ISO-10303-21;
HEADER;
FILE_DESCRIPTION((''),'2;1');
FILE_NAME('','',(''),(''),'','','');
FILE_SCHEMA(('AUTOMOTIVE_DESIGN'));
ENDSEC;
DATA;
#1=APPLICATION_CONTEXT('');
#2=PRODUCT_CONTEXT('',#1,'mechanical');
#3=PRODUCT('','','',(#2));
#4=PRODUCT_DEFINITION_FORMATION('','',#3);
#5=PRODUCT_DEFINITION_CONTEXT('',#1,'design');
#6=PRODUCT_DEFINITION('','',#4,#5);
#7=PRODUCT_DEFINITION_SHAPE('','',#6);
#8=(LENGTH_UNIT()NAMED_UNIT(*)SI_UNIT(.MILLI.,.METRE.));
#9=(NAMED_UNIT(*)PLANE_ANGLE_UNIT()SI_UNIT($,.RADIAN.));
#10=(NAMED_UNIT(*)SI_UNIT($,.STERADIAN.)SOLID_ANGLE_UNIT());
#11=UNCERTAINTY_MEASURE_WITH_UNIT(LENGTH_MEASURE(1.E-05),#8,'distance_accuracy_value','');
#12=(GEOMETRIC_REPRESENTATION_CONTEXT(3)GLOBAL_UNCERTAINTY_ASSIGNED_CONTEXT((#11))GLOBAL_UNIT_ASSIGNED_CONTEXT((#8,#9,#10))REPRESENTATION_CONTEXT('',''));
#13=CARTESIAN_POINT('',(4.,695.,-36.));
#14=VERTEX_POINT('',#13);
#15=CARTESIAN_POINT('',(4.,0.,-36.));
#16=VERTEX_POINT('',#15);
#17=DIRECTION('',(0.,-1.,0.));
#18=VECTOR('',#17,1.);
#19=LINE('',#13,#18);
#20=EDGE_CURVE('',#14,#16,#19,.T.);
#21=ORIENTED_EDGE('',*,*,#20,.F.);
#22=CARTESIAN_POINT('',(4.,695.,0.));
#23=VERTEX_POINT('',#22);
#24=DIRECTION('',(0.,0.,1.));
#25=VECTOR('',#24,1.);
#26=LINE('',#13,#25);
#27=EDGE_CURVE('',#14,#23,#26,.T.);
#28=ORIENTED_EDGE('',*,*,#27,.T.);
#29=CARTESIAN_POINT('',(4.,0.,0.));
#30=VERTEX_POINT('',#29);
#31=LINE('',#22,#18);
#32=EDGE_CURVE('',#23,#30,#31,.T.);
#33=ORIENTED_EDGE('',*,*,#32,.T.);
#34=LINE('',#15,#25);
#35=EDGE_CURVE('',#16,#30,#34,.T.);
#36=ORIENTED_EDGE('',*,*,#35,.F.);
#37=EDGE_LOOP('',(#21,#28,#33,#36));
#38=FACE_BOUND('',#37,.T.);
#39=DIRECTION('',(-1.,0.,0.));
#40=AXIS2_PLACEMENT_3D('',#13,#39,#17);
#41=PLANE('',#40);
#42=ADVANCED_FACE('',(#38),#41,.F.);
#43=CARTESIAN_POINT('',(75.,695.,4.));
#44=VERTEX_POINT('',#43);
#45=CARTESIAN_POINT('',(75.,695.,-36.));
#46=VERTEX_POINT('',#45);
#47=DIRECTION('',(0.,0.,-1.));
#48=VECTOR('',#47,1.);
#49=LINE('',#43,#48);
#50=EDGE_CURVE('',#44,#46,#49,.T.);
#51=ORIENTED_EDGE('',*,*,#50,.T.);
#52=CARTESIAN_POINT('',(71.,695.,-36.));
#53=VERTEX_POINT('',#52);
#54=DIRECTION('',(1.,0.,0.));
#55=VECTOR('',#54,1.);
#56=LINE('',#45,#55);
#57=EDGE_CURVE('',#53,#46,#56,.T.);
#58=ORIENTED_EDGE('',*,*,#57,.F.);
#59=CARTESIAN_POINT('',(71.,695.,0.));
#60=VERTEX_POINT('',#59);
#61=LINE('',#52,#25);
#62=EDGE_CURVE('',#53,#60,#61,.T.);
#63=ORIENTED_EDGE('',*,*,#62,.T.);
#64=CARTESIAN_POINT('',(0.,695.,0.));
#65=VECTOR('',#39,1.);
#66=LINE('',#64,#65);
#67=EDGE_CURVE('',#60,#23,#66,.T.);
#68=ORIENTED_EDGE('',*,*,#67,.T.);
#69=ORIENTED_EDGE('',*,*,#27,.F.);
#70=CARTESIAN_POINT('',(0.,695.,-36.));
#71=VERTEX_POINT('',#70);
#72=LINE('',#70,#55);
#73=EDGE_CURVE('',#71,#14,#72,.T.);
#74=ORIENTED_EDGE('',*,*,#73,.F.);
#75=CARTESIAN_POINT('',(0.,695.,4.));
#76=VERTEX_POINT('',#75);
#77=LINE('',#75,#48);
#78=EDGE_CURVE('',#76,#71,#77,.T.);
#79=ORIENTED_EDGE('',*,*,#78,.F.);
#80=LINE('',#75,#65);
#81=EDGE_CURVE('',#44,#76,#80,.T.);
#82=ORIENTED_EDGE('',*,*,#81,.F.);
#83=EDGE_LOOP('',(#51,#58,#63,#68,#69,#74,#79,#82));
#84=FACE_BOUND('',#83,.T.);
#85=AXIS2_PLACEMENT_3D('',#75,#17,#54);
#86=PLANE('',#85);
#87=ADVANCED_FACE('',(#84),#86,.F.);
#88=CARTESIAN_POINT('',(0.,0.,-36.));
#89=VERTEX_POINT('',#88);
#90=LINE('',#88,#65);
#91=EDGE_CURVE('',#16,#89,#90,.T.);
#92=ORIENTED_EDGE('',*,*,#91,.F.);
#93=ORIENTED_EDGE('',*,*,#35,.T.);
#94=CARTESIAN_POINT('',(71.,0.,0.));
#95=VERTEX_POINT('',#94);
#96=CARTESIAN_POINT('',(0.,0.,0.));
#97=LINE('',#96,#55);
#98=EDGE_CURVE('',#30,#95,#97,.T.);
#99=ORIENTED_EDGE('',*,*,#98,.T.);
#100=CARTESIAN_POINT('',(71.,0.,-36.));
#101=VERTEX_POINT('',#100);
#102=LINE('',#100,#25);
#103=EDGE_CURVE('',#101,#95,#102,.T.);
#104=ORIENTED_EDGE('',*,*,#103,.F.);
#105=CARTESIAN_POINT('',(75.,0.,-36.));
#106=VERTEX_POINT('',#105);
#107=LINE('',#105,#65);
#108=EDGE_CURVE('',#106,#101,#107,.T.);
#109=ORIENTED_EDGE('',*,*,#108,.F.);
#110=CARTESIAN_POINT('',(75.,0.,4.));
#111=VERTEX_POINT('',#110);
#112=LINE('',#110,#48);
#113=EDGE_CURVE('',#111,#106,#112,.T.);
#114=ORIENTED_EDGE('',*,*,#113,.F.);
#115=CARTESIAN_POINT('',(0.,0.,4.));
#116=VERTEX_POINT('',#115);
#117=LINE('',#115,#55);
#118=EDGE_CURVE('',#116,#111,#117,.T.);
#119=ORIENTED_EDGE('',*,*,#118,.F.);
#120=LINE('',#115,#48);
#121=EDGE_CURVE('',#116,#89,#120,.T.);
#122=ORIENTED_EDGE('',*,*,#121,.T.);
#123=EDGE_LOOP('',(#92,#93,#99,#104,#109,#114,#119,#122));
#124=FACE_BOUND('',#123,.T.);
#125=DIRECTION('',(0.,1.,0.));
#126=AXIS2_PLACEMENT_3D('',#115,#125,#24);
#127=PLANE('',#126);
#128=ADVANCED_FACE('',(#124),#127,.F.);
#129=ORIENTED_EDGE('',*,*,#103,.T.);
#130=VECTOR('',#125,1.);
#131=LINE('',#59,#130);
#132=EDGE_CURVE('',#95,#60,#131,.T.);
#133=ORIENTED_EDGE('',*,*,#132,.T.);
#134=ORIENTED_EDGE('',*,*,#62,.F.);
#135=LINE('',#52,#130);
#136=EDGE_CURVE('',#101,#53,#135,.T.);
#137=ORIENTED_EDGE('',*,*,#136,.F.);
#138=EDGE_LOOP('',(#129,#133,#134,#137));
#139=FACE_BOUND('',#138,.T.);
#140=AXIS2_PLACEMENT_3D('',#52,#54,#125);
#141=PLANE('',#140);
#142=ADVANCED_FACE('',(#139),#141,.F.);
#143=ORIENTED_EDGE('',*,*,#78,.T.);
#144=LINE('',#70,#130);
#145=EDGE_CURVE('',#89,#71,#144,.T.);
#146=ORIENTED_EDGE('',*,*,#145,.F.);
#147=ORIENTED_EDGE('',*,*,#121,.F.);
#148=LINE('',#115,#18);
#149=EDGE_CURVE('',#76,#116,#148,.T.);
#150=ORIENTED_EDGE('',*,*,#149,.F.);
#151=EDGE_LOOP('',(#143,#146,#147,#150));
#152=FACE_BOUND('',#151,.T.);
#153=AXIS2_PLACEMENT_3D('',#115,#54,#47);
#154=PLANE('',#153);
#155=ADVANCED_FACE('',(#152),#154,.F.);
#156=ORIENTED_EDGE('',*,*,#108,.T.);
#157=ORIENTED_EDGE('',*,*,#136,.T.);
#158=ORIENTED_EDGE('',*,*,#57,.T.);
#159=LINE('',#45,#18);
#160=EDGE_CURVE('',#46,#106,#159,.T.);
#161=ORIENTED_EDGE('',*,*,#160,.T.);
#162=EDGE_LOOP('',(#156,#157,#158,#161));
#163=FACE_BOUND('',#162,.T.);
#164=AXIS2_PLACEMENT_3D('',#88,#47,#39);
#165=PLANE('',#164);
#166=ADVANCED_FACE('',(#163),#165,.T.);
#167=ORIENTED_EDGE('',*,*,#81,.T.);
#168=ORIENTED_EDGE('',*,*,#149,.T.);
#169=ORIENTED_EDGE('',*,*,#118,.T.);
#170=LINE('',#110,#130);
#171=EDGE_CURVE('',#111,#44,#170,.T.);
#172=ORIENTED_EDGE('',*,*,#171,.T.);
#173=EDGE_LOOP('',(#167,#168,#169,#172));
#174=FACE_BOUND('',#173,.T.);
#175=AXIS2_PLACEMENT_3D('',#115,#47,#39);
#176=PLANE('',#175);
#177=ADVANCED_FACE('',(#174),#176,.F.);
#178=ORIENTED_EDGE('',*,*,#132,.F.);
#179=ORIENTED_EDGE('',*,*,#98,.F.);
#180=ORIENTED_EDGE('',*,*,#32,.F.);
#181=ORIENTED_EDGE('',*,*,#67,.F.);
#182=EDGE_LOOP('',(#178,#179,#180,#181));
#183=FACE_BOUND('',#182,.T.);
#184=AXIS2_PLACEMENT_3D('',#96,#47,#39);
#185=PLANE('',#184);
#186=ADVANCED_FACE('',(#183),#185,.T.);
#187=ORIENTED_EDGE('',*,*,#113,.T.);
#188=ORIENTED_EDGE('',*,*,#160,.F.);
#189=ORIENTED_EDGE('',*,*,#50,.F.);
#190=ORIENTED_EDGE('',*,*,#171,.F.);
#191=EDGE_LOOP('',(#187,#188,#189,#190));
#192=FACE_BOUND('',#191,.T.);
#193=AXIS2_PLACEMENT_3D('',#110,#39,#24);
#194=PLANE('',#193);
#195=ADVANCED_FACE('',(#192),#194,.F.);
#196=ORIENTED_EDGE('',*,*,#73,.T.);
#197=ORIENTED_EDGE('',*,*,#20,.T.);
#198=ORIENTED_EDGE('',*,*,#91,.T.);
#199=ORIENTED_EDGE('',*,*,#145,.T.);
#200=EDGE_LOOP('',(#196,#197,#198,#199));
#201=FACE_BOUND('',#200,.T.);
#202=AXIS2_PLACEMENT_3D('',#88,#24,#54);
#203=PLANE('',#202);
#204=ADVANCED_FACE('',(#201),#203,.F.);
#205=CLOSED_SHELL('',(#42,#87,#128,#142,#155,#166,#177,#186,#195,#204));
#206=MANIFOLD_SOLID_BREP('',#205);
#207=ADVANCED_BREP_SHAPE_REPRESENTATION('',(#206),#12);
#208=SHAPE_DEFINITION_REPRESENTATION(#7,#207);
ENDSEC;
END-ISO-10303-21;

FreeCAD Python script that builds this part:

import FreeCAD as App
import Part
import Sketcher


def add_polygon(sketch, points):
    """Adds a closed chain of lines whose ends are joined by coincident constraints."""
    first, n = sketch.GeometryCount, len(points)
    for a, b in zip(points, points[1:] + points[:1]):
        sketch.addGeometry(Part.LineSegment(App.Vector(*a, 0), App.Vector(*b, 0)), False)
    for i in range(n):
        sketch.addConstraint(Sketcher.Constraint("Coincident", first + i, 2, first + (i + 1) % n, 1))

doc = App.newDocument("Part")
params = doc.addObject("Spreadsheet::Sheet", "Params")
for row, (alias, value) in enumerate([
    ("sketch1_width", "75 mm"),
    ("sketch1_height", "695 mm"),
    ("pad1_length", "4 mm"),
    ("sketch2_width", "4 mm"),
    ("sketch2_height", "695 mm"),
    ("pad2_length", "36 mm"),
], start=1):
    params.set(f"A{row}", alias)
    params.set(f"B{row}", "=" + value)
    params.setAlias(f"B{row}", alias)

body = doc.addObject("PartDesign::Body", "Body")

sketch1 = body.newObject("Sketcher::SketchObject", "Sketch")
sketch1.AttachmentSupport = (doc.getObject("XY_Plane"), [""])
sketch1.MapMode = "FlatFace"
add_polygon(sketch1, [(0, 695), (0, 0), (75, 0), (75, 695)])
sketch1.addConstraint([
    Sketcher.Constraint("Vertical", 0),
    Sketcher.Constraint("Horizontal", 1),
    Sketcher.Constraint("Vertical", 2),
    Sketcher.Constraint("Horizontal", 3),
    Sketcher.Constraint("Coincident", 0, 2, -1, 1),
    Sketcher.Constraint("DistanceX", 1, 1, 1, 2, 75.0),
    Sketcher.Constraint("DistanceY", 0, 2, 0, 1, 695.0),
])
sketch1.setExpression("Constraints[9]", "Params.sketch1_width")
sketch1.setExpression("Constraints[10]", "Params.sketch1_height")
pad1 = body.newObject("PartDesign::Pad", "Pad")
pad1.Profile = sketch1
pad1.setExpression("Length", "Params.pad1_length")

sketch2 = body.newObject("Sketcher::SketchObject", "Sketch001")
sketch2.AttachmentSupport = (doc.getObject("XY_Plane"), [""])
sketch2.MapMode = "FlatFace"
add_polygon(sketch2, [(75, 695), (75, 0), (71, 0), (71, 695)])
add_polygon(sketch2, [(4, 695), (4, 0), (0, 0), (0, 695)])
sketch2.addConstraint([
    Sketcher.Constraint("Vertical", 0),
    Sketcher.Constraint("Horizontal", 1),
    Sketcher.Constraint("Vertical", 2),
    Sketcher.Constraint("Horizontal", 3),
    Sketcher.Constraint("Vertical", 4),
    Sketcher.Constraint("Horizontal", 5),
    Sketcher.Constraint("Vertical", 6),
    Sketcher.Constraint("Horizontal", 7),
    Sketcher.Constraint("Coincident", 5, 2, -1, 1),
    Sketcher.Constraint("PointOnObject", 0, 2, -1),
    Sketcher.Constraint("Horizontal", 3, 2, 6, 2),
    Sketcher.Constraint("Equal", 3, 5),
    Sketcher.Constraint("DistanceX", 1, 2, 1, 1, 4.0),
    Sketcher.Constraint("DistanceY", 0, 2, 0, 1, 695.0),
    Sketcher.Constraint("DistanceX", -1, 1, 0, 2, 75.0),
])
sketch2.setExpression("Constraints[20]", "Params.sketch2_width")
sketch2.setExpression("Constraints[21]", "Params.sketch2_height")
pad2 = body.newObject("PartDesign::Pad", "Pad001")
pad2.Profile = sketch2
pad2.setExpression("Length", "Params.pad2_length")
pad2.Reversed = True

doc.recompute()
